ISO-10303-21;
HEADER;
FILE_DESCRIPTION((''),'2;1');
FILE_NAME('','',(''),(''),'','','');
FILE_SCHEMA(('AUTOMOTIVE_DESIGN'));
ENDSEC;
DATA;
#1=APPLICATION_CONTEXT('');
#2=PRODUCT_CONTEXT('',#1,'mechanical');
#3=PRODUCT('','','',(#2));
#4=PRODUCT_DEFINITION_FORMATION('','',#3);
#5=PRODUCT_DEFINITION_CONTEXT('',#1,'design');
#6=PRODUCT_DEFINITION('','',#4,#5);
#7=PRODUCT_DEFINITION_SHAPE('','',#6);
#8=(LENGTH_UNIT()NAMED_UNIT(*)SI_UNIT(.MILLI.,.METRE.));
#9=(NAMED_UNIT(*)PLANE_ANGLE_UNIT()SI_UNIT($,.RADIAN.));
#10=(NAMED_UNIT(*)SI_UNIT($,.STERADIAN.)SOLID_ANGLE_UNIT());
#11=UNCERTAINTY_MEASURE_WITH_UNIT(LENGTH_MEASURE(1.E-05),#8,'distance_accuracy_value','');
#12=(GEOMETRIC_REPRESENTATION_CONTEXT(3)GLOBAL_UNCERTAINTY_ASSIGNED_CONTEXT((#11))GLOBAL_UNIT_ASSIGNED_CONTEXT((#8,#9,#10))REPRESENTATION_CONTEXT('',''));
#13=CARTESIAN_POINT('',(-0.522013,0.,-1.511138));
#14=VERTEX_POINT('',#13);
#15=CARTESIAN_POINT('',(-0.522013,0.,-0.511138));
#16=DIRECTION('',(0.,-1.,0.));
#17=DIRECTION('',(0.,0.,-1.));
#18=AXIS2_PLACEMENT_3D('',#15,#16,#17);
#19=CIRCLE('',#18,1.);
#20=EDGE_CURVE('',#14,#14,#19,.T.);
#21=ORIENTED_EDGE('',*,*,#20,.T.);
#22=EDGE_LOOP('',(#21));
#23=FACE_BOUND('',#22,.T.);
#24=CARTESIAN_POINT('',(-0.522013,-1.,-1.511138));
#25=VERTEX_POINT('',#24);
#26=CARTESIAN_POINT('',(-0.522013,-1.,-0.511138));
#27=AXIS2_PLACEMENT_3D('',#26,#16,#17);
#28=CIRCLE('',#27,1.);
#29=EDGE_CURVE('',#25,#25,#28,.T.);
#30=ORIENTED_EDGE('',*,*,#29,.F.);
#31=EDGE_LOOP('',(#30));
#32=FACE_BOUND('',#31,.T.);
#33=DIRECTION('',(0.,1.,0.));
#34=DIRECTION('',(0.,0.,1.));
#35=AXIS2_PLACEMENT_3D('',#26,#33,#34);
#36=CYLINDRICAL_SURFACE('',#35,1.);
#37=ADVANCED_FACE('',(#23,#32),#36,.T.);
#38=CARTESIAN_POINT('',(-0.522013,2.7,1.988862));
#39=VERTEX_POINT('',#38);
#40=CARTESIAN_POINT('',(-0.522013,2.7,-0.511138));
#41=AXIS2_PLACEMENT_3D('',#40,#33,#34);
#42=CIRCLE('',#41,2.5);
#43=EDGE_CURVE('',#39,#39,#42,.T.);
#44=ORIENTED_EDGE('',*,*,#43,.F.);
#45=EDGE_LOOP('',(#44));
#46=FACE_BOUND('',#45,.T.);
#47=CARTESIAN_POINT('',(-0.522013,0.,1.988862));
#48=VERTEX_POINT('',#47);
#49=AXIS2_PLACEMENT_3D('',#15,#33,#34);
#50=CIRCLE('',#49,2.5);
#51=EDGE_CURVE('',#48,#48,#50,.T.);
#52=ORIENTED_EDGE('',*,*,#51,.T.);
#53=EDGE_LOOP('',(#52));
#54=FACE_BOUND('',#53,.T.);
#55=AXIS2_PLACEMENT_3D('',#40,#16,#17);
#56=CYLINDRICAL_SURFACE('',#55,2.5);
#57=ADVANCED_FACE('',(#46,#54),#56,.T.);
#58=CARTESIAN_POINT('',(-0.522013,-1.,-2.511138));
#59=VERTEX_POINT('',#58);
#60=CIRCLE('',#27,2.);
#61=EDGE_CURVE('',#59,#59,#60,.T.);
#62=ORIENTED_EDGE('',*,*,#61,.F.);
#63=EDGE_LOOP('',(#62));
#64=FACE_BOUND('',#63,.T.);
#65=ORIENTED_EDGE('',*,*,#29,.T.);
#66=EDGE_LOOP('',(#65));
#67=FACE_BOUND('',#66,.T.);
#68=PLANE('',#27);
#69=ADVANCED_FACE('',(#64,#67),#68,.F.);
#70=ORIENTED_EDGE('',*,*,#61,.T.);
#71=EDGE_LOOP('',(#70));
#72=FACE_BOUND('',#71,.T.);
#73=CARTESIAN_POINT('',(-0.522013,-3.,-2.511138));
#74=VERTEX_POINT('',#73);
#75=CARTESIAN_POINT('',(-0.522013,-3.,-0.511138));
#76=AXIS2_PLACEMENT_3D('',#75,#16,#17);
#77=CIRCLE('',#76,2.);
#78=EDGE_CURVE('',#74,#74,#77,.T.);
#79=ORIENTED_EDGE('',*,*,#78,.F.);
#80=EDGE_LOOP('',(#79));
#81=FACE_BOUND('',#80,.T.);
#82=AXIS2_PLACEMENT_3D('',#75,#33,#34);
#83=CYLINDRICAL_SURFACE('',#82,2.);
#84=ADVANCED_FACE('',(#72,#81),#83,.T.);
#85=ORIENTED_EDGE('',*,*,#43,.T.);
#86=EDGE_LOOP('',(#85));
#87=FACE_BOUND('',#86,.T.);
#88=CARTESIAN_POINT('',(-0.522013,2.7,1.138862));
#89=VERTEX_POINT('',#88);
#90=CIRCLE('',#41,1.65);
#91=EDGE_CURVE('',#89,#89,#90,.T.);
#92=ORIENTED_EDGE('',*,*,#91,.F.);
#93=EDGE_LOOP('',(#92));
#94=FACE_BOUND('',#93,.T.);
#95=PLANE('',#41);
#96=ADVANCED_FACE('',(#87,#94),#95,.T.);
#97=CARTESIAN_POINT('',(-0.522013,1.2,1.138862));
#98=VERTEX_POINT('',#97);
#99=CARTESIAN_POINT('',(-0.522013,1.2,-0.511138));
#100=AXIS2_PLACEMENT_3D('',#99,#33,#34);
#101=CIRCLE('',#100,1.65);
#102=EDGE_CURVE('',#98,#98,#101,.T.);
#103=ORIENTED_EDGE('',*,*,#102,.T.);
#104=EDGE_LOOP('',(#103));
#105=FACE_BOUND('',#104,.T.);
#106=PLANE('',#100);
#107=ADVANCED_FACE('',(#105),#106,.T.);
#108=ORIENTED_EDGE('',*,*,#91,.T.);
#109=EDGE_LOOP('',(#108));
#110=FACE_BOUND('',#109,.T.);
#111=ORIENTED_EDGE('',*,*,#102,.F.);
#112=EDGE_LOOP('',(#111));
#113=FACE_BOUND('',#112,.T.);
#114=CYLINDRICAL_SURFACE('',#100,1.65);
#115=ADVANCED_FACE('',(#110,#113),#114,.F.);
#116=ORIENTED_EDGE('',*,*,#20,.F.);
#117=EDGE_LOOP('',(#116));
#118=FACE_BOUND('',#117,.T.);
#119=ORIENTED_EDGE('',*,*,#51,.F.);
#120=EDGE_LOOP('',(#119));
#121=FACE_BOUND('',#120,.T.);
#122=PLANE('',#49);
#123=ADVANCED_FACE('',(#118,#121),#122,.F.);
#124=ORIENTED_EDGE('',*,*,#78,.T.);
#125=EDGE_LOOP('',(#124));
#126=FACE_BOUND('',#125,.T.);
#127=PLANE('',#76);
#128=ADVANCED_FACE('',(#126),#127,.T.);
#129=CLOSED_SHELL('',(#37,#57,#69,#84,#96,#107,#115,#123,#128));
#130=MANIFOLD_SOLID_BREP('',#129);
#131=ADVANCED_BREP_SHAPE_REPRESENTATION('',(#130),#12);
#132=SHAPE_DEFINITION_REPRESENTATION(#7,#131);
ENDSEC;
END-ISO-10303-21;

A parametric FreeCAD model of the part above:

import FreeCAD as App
import Part
import Sketcher
Q = App.Units.Quantity

doc = App.newDocument("Part")
body = doc.addObject("PartDesign::Body", "Body")

# Sketch on XZ plane
sketch1 = doc.addObject("Sketcher::SketchObject", "Sketch")
body.addObject(sketch1)
sketch1.AttachmentSupport = (doc.XZ_Plane, [""])
sketch1.MapMode = "FlatFace"
sketch1.addGeometry(Part.Circle(App.Vector(-0.522013, -0.511138, 0), App.Vector(0, 0, 1), 2.5), False)
sketch1.addConstraint([
    Sketcher.Constraint("Diameter", 0, Q("5 mm")),
    Sketcher.Constraint("DistanceY", 0, 3, -1, 1, Q("0.511138 mm")),
    Sketcher.Constraint("DistanceX", 0, 3, -1, 1, Q("0.522013 mm")),
])
pad1 = doc.addObject("PartDesign::Pad", "Pad")
body.addObject(pad1)
pad1.Profile = sketch1
pad1.Length = 2.7
pad1.Reversed = True

# Sketch on XZ plane
sketch2 = doc.addObject("Sketcher::SketchObject", "Sketch001")
body.addObject(sketch2)
sketch2.AttachmentSupport = (doc.XZ_Plane, [""])
sketch2.MapMode = "FlatFace"
sketch2.addGeometry(Part.Circle(App.Vector(-0.522013, -0.511138, 0), App.Vector(0, 0, 1), 2), False)
sketch2.addConstraint([
    Sketcher.Constraint("Diameter", 0, Q("4 mm")),
    Sketcher.Constraint("DistanceY", 0, 3, -1, 1, Q("0.511138 mm")),
    Sketcher.Constraint("DistanceX", 0, 3, -1, 1, Q("0.522013 mm")),
])
pad2 = doc.addObject("PartDesign::Pad", "Pad001")
body.addObject(pad2)
pad2.Profile = sketch2
pad2.Length = 1
pad2.Reversed = True

# Sketch on XZ plane
sketch3 = doc.addObject("Sketcher::SketchObject", "Sketch002")
body.addObject(sketch3)
sketch3.AttachmentSupport = (doc.XZ_Plane, [""])
sketch3.MapMode = "FlatFace"
sketch3.addGeometry(Part.Circle(App.Vector(-0.522013, -0.511138, 0), App.Vector(0, 0, 1), 1), False)
sketch3.addConstraint([
    Sketcher.Constraint("Diameter", 0, Q("2 mm")),
    Sketcher.Constraint("DistanceY", 0, 3, -1, 1, Q("0.511138 mm")),
    Sketcher.Constraint("DistanceX", 0, 3, -1, 1, Q("0.522013 mm")),
])
pad3 = doc.addObject("PartDesign::Pad", "Pad002")
body.addObject(pad3)
pad3.Profile = sketch3
pad3.Length = 1

# Sketch on XZ plane
sketch4 = doc.addObject("Sketcher::SketchObject", "Sketch003")
body.addObject(sketch4)
sketch4.AttachmentSupport = (doc.XZ_Plane, [""])
sketch4.MapMode = "FlatFace"
sketch4.AttachmentOffset = App.Placement(App.Vector(0, 0, 1), App.Rotation())
sketch4.addGeometry(Part.Circle(App.Vector(-0.522013, -0.511138, 0), App.Vector(0, 0, 1), 2), False)
sketch4.addConstraint([
    Sketcher.Constraint("Diameter", 0, Q("4 mm")),
    Sketcher.Constraint("DistanceY", 0, 3, -1, 1, Q("0.511138 mm")),
    Sketcher.Constraint("DistanceX", 0, 3, -1, 1, Q("0.522013 mm")),
])
pad4 = doc.addObject("PartDesign::Pad", "Pad003")
body.addObject(pad4)
pad4.Profile = sketch4
pad4.Length = 2

# Sketch on XZ plane
sketch5 = doc.addObject("Sketcher::SketchObject", "Sketch004")
body.addObject(sketch5)
sketch5.AttachmentSupport = (doc.XZ_Plane, [""])
sketch5.MapMode = "FlatFace"
sketch5.AttachmentOffset = App.Placement(App.Vector(0, 0, -2.7), App.Rotation())
sketch5.addGeometry(Part.Circle(App.Vector(-0.522013, -0.511138, 0), App.Vector(0, 0, 1), 1.65), False)
sketch5.addConstraint([
    Sketcher.Constraint("Diameter", 0, Q("3.3 mm")),
    Sketcher.Constraint("DistanceY", 0, 3, -1, 1, Q("0.511138 mm")),
    Sketcher.Constraint("DistanceX", 0, 3, -1, 1, Q("0.522013 mm")),
])
pocket1 = doc.addObject("PartDesign::Pocket", "Pocket")
body.addObject(pocket1)
pocket1.Profile = sketch5
pocket1.Length = 1.5
pocket1.Reversed = True

doc.recompute()
